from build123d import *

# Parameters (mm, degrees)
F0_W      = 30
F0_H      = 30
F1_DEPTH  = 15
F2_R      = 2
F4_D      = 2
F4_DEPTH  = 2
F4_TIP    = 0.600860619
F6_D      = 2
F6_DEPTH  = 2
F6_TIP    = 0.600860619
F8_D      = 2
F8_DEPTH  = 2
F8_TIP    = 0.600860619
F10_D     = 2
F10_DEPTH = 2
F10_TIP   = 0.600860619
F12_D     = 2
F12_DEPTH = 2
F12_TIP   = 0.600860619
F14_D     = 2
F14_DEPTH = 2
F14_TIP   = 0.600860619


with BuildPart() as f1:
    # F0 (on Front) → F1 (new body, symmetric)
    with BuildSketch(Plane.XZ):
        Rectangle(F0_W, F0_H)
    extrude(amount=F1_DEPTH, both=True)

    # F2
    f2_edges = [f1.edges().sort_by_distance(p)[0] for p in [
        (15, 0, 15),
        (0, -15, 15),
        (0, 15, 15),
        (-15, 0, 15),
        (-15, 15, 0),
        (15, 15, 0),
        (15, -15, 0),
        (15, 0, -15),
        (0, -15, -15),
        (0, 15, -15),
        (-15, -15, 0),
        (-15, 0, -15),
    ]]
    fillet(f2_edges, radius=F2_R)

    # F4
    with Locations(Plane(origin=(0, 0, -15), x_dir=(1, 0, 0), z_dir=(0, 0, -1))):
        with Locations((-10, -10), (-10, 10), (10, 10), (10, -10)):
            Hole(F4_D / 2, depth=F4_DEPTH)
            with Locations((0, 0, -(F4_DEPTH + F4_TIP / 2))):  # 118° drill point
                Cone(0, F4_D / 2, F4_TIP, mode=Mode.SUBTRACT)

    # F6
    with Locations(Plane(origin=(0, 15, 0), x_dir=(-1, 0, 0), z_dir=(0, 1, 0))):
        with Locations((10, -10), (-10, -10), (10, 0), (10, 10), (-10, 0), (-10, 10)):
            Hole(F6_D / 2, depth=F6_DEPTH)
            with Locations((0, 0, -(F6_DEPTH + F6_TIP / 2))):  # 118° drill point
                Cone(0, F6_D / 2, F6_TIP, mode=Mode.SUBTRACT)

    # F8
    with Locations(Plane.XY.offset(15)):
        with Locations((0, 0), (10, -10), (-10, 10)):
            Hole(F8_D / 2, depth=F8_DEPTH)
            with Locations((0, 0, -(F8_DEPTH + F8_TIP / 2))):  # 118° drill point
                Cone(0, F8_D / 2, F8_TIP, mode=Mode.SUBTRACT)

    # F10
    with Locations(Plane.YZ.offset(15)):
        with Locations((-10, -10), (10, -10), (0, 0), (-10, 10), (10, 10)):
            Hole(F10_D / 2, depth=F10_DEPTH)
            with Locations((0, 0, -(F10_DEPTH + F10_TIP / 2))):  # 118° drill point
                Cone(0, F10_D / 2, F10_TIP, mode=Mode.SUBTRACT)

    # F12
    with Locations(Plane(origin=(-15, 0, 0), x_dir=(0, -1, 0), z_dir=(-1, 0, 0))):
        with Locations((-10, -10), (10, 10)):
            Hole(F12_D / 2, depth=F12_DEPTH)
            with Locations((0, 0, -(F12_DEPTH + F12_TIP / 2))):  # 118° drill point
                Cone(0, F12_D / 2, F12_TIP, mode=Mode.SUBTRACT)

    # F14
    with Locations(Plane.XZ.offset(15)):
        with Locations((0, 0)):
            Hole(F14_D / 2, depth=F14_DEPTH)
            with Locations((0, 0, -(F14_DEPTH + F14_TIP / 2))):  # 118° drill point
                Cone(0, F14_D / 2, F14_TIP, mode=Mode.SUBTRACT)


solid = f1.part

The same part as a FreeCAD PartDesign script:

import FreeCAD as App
import Part
import Sketcher

V = App.Vector


def add_polygon(sketch, points):
    """Adds a closed chain of lines whose ends are joined by coincident constraints."""
    first, n = sketch.GeometryCount, len(points)
    for a, b in zip(points, points[1:] + points[:1]):
        sketch.addGeometry(Part.LineSegment(App.Vector(*a, 0), App.Vector(*b, 0)), False)
    for i in range(n):
        sketch.addConstraint(Sketcher.Constraint("Coincident", first + i, 2, first + (i + 1) % n, 1))

doc = App.newDocument("Part")
body = doc.addObject("PartDesign::Body", "Body")

sketch1 = doc.addObject("Sketcher::SketchObject", "Sketch")
body.addObject(sketch1)
sketch1.AttachmentSupport = (doc.XZ_Plane, [""])
sketch1.MapMode = "FlatFace"
add_polygon(sketch1, [(-15, 15), (-15, -15), (15, -15), (15, 15)])
sketch1.addConstraint(Sketcher.Constraint("Vertical", 0))
sketch1.addConstraint(Sketcher.Constraint("Horizontal", 1))
sketch1.addConstraint(Sketcher.Constraint("Vertical", 2))
sketch1.addConstraint(Sketcher.Constraint("Horizontal", 3))
sketch1.addConstraint(Sketcher.Constraint("Symmetric", 0, 2, 2, 2, -1, 1))
sketch1.addConstraint(Sketcher.Constraint("Equal", 3, 0))
sketch1.addConstraint(Sketcher.Constraint("DistanceX", 1, 1, 1, 2, 30.0))
pad1 = doc.addObject("PartDesign::Pad", "Pad")
body.addObject(pad1)
pad1.Profile = sketch1
pad1.Length = 30
pad1.Midplane = True
doc.recompute()

fillet = doc.addObject("PartDesign::Fillet", "Fillet")
body.addObject(fillet)
fillet.Base = (pad1, ["Edge1"])
fillet.UseAllEdges = True
fillet.Radius = 2

sketch2 = doc.addObject("Sketcher::SketchObject", "Sketch001")
body.addObject(sketch2)
sketch2.AttachmentSupport = (doc.XY_Plane, [""])
sketch2.MapMode = "FlatFace"
sketch2.AttachmentOffset = App.Placement(V(0, 0, -15), App.Rotation())
sketch2.addGeometry(Part.Circle(V(-10, 10, 0), V(0, 0, 1), 1), False)
sketch2.addGeometry(Part.Circle(V(-10, -10, 0), V(0, 0, 1), 1), False)
sketch2.addGeometry(Part.Circle(V(10, -10, 0), V(0, 0, 1), 1), False)
sketch2.addGeometry(Part.Circle(V(10, 10, 0), V(0, 0, 1), 1), False)
sketch2.addConstraint(Sketcher.Constraint("Equal", 0, 1))
sketch2.addConstraint(Sketcher.Constraint("Equal", 1, 2))
sketch2.addConstraint(Sketcher.Constraint("Equal", 2, 3))
sketch2.addConstraint(Sketcher.Constraint("Symmetric", 0, 3, 2, 3, -1, 1))
sketch2.addConstraint(Sketcher.Constraint("Symmetric", 1, 3, 3, 3, -1, 1))
sketch2.addConstraint(Sketcher.Constraint("Symmetric", 1, 3, 2, 3, -2))
sketch2.addConstraint(Sketcher.Constraint("Diameter", 0, 2.0))
sketch2.addConstraint(Sketcher.Constraint("DistanceX", 0, 3, -1, 1, 10.0))
sketch2.addConstraint(Sketcher.Constraint("DistanceY", -1, 1, 0, 3, 10.0))
doc.recompute()
hole = doc.addObject("PartDesign::Hole", "Hole")
body.addObject(hole)
hole.Profile = sketch2
hole.ThreadType = "None"
hole.Diameter = 2
hole.DepthType = "Dimension"
hole.Depth = 2
hole.DrillPoint = "Angled"
hole.DrillPointAngle = 118
hole.Reversed = True

sketch3 = doc.addObject("Sketcher::SketchObject", "Sketch002")
body.addObject(sketch3)
sketch3.AttachmentSupport = (doc.XZ_Plane, [""])
sketch3.MapMode = "FlatFace"
sketch3.AttachmentOffset = App.Placement(V(0, 0, -15), App.Rotation())
sketch3.addGeometry(Part.Circle(V(-10, -10, 0), V(0, 0, 1), 1), False)
sketch3.addGeometry(Part.Circle(V(10, -10, 0), V(0, 0, 1), 1), False)
sketch3.addGeometry(Part.Circle(V(-10, 0, 0), V(0, 0, 1), 1), False)
sketch3.addGeometry(Part.Circle(V(-10, 10, 0), V(0, 0, 1), 1), False)
sketch3.addGeometry(Part.Circle(V(10, 0, 0), V(0, 0, 1), 1), False)
sketch3.addGeometry(Part.Circle(V(10, 10, 0), V(0, 0, 1), 1), False)
sketch3.addConstraint(Sketcher.Constraint("Equal", 0, 1))
sketch3.addConstraint(Sketcher.Constraint("Equal", 1, 2))
sketch3.addConstraint(Sketcher.Constraint("Equal", 2, 3))
sketch3.addConstraint(Sketcher.Constraint("Equal", 3, 4))
sketch3.addConstraint(Sketcher.Constraint("Equal", 4, 5))
sketch3.addConstraint(Sketcher.Constraint("Symmetric", 1, 3, 3, 3, -1, 1))
sketch3.addConstraint(Sketcher.Constraint("Symmetric", 2, 3, 4, 3, -1, 1))
sketch3.addConstraint(Sketcher.Constraint("Symmetric", 0, 3, 5, 3, -1, 1))
sketch3.addConstraint(Sketcher.Constraint("Symmetric", 0, 3, 1, 3, -2))
sketch3.addConstraint(Sketcher.Constraint("PointOnObject", 2, 3, -1))
sketch3.addConstraint(Sketcher.Constraint("Vertical", 0, 3, 2, 3))
sketch3.addConstraint(Sketcher.Constraint("Diameter", 0, 2.0))
sketch3.addConstraint(Sketcher.Constraint("DistanceX", 0, 3, -1, 1, 10.0))
sketch3.addConstraint(Sketcher.Constraint("DistanceY", 0, 3, -1, 1, 10.0))
doc.recompute()
hole2 = doc.addObject("PartDesign::Hole", "Hole001")
body.addObject(hole2)
hole2.Profile = sketch3
hole2.ThreadType = "None"
hole2.Diameter = 2
hole2.DepthType = "Dimension"
hole2.Depth = 2
hole2.DrillPoint = "Angled"
hole2.DrillPointAngle = 118
hole2.Reversed = True

sketch4 = doc.addObject("Sketcher::SketchObject", "Sketch003")
body.addObject(sketch4)
sketch4.AttachmentSupport = (doc.XY_Plane, [""])
sketch4.MapMode = "FlatFace"
sketch4.AttachmentOffset = App.Placement(V(0, 0, 15), App.Rotation())
sketch4.addGeometry(Part.Circle(V(0, 0, 0), V(0, 0, 1), 1), False)
sketch4.addGeometry(Part.Circle(V(10, -10, 0), V(0, 0, 1), 1), False)
sketch4.addGeometry(Part.Circle(V(-10, 10, 0), V(0, 0, 1), 1), False)
sketch4.addConstraint(Sketcher.Constraint("Coincident", 0, 3, -1, 1))
sketch4.addConstraint(Sketcher.Constraint("Equal", 0, 1))
sketch4.addConstraint(Sketcher.Constraint("Equal", 1, 2))
sketch4.addConstraint(Sketcher.Constraint("Symmetric", 1, 3, 2, 3, -1, 1))
sketch4.addConstraint(Sketcher.Constraint("Diameter", 0, 2.0))
sketch4.addConstraint(Sketcher.Constraint("DistanceX", -1, 1, 1, 3, 10.0))
sketch4.addConstraint(Sketcher.Constraint("DistanceY", 1, 3, -1, 1, 10.0))
doc.recompute()
hole3 = doc.addObject("PartDesign::Hole", "Hole002")
body.addObject(hole3)
hole3.Profile = sketch4
hole3.ThreadType = "None"
hole3.Diameter = 2
hole3.DepthType = "Dimension"
hole3.Depth = 2
hole3.DrillPoint = "Angled"
hole3.DrillPointAngle = 118

sketch5 = doc.addObject("Sketcher::SketchObject", "Sketch004")
body.addObject(sketch5)
sketch5.AttachmentSupport = (doc.YZ_Plane, [""])
sketch5.MapMode = "FlatFace"
sketch5.AttachmentOffset = App.Placement(V(0, 0, 15), App.Rotation())
sketch5.addGeometry(Part.Circle(V(-10, -10, 0), V(0, 0, 1), 1), False)
sketch5.addGeometry(Part.Circle(V(10, -10, 0), V(0, 0, 1), 1), False)
sketch5.addGeometry(Part.Circle(V(0, 0, 0), V(0, 0, 1), 1), False)
sketch5.addGeometry(Part.Circle(V(-10, 10, 0), V(0, 0, 1), 1), False)
sketch5.addGeometry(Part.Circle(V(10, 10, 0), V(0, 0, 1), 1), False)
sketch5.addConstraint(Sketcher.Constraint("Coincident", 2, 3, -1, 1))
sketch5.addConstraint(Sketcher.Constraint("Equal", 0, 1))
sketch5.addConstraint(Sketcher.Constraint("Equal", 1, 2))
sketch5.addConstraint(Sketcher.Constraint("Equal", 2, 3))
sketch5.addConstraint(Sketcher.Constraint("Equal", 3, 4))
sketch5.addConstraint(Sketcher.Constraint("Symmetric", 1, 3, 3, 3, -1, 1))
sketch5.addConstraint(Sketcher.Constraint("Symmetric", 0, 3, 4, 3, -1, 1))
sketch5.addConstraint(Sketcher.Constraint("Symmetric", 0, 3, 1, 3, -2))
sketch5.addConstraint(Sketcher.Constraint("Diameter", 0, 2.0))
sketch5.addConstraint(Sketcher.Constraint("DistanceX", 0, 3, -1, 1, 10.0))
sketch5.addConstraint(Sketcher.Constraint("DistanceY", 0, 3, -1, 1, 10.0))
doc.recompute()
hole4 = doc.addObject("PartDesign::Hole", "Hole003")
body.addObject(hole4)
hole4.Profile = sketch5
hole4.ThreadType = "None"
hole4.Diameter = 2
hole4.DepthType = "Dimension"
hole4.Depth = 2
hole4.DrillPoint = "Angled"
hole4.DrillPointAngle = 118

sketch6 = doc.addObject("Sketcher::SketchObject", "Sketch005")
body.addObject(sketch6)
sketch6.AttachmentSupport = (doc.YZ_Plane, [""])
sketch6.MapMode = "FlatFace"
sketch6.AttachmentOffset = App.Placement(V(0, 0, -15), App.Rotation())
sketch6.addGeometry(Part.Circle(V(10, -10, 0), V(0, 0, 1), 1), False)
sketch6.addGeometry(Part.Circle(V(-10, 10, 0), V(0, 0, 1), 1), False)
sketch6.addConstraint(Sketcher.Constraint("Equal", 0, 1))
sketch6.addConstraint(Sketcher.Constraint("Symmetric", 0, 3, 1, 3, -1, 1))
sketch6.addConstraint(Sketcher.Constraint("Diameter", 0, 2.0))
sketch6.addConstraint(Sketcher.Constraint("DistanceX", -1, 1, 0, 3, 10.0))
sketch6.addConstraint(Sketcher.Constraint("DistanceY", 0, 3, -1, 1, 10.0))
doc.recompute()
hole5 = doc.addObject("PartDesign::Hole", "Hole004")
body.addObject(hole5)
hole5.Profile = sketch6
hole5.ThreadType = "None"
hole5.Diameter = 2
hole5.DepthType = "Dimension"
hole5.Depth = 2
hole5.DrillPoint = "Angled"
hole5.DrillPointAngle = 118
hole5.Reversed = True

sketch7 = doc.addObject("Sketcher::SketchObject", "Sketch006")
body.addObject(sketch7)
sketch7.AttachmentSupport = (doc.XZ_Plane, [""])
sketch7.MapMode = "FlatFace"
sketch7.AttachmentOffset = App.Placement(V(0, 0, 15), App.Rotation())
sketch7.addGeometry(Part.Circle(V(0, 0, 0), V(0, 0, 1), 1), False)
sketch7.addConstraint(Sketcher.Constraint("Coincident", 0, 3, -1, 1))
sketch7.addConstraint(Sketcher.Constraint("Diameter", 0, 2.0))
doc.recompute()
hole6 = doc.addObject("PartDesign::Hole", "Hole005")
body.addObject(hole6)
hole6.Profile = sketch7
hole6.ThreadType = "None"
hole6.Diameter = 2
hole6.DepthType = "Dimension"
hole6.Depth = 2
hole6.DrillPoint = "Angled"
hole6.DrillPointAngle = 118

doc.recompute()
